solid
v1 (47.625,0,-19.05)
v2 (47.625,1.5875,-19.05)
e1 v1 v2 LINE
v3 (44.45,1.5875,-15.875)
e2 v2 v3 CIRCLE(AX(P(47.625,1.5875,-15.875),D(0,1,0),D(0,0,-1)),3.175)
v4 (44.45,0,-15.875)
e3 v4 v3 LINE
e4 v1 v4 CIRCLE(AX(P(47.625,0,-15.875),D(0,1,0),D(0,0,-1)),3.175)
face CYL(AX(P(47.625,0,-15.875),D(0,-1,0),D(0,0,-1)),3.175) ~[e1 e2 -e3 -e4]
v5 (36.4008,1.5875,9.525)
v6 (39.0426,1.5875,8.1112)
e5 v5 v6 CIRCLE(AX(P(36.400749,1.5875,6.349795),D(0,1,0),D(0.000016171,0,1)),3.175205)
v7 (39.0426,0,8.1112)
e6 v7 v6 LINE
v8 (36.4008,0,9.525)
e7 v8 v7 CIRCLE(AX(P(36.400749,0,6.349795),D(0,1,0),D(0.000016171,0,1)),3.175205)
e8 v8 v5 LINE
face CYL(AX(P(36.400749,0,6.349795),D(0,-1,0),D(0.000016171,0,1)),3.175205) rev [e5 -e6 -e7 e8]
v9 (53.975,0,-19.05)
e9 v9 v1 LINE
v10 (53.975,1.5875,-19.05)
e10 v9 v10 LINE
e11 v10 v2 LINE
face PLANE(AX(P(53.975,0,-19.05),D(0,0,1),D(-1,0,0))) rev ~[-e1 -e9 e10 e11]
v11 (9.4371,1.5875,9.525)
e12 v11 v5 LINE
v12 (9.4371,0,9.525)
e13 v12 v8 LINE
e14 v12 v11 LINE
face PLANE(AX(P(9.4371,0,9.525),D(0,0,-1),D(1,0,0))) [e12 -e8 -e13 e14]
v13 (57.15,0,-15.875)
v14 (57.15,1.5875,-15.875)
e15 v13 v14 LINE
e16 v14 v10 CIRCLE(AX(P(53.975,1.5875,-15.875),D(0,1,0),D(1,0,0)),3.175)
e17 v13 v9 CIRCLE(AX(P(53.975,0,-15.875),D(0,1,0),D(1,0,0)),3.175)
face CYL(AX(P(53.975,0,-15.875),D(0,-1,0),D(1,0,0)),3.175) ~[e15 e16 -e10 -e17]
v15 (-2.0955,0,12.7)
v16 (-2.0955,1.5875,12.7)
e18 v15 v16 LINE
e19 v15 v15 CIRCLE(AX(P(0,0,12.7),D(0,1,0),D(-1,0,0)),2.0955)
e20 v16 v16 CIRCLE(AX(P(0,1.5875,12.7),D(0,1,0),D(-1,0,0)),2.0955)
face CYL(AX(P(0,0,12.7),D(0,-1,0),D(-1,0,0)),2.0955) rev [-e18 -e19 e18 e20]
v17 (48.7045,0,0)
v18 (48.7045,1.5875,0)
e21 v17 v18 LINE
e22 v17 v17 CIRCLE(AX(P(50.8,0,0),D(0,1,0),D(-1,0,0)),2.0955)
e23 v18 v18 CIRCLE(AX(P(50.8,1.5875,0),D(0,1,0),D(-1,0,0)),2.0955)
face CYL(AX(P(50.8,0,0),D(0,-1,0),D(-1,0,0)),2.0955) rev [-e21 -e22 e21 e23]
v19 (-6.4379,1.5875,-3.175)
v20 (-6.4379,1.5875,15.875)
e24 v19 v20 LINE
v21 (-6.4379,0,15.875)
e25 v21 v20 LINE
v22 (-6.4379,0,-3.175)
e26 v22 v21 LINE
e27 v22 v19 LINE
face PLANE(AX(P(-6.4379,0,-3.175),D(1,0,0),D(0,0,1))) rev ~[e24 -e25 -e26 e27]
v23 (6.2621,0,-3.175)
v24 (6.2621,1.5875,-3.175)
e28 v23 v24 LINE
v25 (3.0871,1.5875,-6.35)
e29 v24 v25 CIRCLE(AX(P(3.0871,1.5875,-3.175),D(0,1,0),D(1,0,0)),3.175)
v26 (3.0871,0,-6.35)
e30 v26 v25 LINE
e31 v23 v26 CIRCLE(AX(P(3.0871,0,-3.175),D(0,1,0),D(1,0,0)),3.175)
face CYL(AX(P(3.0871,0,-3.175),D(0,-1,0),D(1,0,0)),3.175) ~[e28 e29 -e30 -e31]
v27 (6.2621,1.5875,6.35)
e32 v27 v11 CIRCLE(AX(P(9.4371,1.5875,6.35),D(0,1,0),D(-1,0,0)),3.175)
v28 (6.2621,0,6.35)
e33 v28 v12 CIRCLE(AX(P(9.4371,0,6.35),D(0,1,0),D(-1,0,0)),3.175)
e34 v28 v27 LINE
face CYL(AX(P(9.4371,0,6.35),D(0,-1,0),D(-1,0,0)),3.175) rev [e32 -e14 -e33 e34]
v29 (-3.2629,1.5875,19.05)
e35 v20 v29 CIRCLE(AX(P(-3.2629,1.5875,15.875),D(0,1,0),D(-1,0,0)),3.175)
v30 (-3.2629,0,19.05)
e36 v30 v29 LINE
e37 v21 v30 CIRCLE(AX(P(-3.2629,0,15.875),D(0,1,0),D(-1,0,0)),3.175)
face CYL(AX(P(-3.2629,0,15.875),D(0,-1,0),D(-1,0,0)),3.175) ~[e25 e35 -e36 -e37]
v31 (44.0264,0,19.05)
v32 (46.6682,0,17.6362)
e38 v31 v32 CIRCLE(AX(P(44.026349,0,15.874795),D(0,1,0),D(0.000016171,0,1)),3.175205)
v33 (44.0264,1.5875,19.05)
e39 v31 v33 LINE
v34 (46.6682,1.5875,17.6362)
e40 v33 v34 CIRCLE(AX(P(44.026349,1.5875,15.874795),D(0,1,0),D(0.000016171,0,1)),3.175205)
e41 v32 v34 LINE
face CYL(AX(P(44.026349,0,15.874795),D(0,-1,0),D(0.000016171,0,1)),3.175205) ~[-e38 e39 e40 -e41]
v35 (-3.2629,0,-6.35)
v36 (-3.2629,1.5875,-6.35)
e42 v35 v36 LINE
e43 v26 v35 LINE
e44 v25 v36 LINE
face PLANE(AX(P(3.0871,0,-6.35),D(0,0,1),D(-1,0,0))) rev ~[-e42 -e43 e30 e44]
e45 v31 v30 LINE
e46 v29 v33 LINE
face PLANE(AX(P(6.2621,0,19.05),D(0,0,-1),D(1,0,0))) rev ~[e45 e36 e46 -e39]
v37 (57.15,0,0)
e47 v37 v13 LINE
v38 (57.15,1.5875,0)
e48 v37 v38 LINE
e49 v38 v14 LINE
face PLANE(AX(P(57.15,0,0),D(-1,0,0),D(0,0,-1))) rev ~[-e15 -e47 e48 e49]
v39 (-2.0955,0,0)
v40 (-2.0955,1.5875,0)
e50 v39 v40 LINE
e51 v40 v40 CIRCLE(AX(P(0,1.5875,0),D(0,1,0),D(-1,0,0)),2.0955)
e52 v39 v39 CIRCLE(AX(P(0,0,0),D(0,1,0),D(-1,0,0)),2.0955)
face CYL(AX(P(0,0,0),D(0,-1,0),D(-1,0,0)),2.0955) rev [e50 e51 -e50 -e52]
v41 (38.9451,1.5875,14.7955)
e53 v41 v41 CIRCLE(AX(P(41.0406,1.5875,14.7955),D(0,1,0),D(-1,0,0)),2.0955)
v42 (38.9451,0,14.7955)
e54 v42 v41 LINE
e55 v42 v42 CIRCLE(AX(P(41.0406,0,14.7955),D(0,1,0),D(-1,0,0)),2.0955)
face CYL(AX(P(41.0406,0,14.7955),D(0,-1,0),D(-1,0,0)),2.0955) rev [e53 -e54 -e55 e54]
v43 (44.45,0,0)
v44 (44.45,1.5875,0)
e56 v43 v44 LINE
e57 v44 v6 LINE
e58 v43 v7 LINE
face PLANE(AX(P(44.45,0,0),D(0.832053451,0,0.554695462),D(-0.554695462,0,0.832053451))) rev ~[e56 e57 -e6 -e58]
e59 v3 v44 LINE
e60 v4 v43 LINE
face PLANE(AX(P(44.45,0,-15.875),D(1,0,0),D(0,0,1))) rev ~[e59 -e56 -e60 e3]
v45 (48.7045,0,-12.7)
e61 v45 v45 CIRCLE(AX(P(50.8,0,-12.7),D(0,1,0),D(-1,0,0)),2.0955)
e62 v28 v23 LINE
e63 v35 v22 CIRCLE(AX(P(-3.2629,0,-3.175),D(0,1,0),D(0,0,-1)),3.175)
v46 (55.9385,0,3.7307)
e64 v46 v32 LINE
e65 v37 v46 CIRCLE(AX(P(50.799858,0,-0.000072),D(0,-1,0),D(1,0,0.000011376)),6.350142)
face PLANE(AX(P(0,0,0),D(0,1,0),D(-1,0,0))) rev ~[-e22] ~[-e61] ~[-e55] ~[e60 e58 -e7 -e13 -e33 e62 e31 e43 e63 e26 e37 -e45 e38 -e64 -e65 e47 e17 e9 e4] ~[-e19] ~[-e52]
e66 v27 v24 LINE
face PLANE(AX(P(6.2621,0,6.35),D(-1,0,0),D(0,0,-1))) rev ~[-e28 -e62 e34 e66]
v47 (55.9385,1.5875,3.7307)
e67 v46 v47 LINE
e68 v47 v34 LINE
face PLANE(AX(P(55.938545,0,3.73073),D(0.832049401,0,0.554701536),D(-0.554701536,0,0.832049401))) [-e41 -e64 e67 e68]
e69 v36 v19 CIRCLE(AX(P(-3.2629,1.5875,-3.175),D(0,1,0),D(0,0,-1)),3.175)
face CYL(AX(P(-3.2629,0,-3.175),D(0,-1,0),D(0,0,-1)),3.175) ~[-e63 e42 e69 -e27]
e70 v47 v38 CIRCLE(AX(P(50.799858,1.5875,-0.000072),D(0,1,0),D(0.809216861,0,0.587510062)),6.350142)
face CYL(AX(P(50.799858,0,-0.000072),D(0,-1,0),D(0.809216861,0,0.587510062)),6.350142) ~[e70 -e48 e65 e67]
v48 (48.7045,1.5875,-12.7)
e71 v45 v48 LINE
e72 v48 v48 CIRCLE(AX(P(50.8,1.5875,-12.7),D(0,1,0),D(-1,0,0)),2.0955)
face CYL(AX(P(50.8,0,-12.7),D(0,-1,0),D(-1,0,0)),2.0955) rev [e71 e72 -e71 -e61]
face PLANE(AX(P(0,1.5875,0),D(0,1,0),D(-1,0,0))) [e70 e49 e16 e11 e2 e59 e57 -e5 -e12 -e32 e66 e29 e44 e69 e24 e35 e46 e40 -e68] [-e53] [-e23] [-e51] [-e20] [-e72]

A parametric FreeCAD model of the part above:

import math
import FreeCAD as App
import Part
import Sketcher
from FreeCAD import Vector
Q = App.Units.Quantity

doc = App.newDocument("Part")
body = doc.addObject("PartDesign::Body", "Body")

# Sketch on XZ plane
sketch1 = body.newObject("Sketcher::SketchObject", "Sketch")
sketch1.AttachmentSupport = (doc.getObject("XZ_Plane"), [""])
sketch1.MapMode = "FlatFace"
sketch1.addGeometry(Part.ArcOfCircle(Part.Circle(Vector(-3.3, -3.2, 0), Vector(0, 0, 1), 3.2), math.radians(180), math.radians(270)), False)
sketch1.addGeometry(Part.LineSegment(Vector(-6.4, -3.2, 0), Vector(-6.4, 15.9, 0)), False)
sketch1.addGeometry(Part.ArcOfCircle(Part.Circle(Vector(-3.3, 15.9, 0), Vector(0, 0, 1), 3.2), math.radians(90), math.radians(180)), False)
sketch1.addGeometry(Part.LineSegment(Vector(-3.3, 19.1, 0), Vector(44, 19.1, 0)), False)
sketch1.addGeometry(Part.ArcOfCircle(Part.Circle(Vector(44, 15.9, 0), Vector(0, 0, 1), 3.2), math.radians(34), math.radians(90)), False)
sketch1.addGeometry(Part.LineSegment(Vector(46.7, 17.6, 0), Vector(55.9, 3.7, 0)), False)
sketch1.addGeometry(Part.ArcOfCircle(Part.Circle(Vector(50.8, 0, 0), Vector(0, 0, 1), 6.3), math.radians(0), math.radians(36)), False)
sketch1.addGeometry(Part.LineSegment(Vector(57.1, 0, 0), Vector(57.1, -15.9, 0)), False)
sketch1.addGeometry(Part.ArcOfCircle(Part.Circle(Vector(54, -15.9, 0), Vector(0, 0, 1), 3.2), math.radians(-90), math.radians(0)), False)
sketch1.addGeometry(Part.LineSegment(Vector(54, -19.1, 0), Vector(47.6, -19.1, 0)), False)
sketch1.addGeometry(Part.ArcOfCircle(Part.Circle(Vector(47.6, -15.9, 0), Vector(0, 0, 1), 3.2), math.radians(180), math.radians(270)), False)
sketch1.addGeometry(Part.LineSegment(Vector(44.5, -15.9, 0), Vector(44.5, 0, 0)), False)
sketch1.addGeometry(Part.LineSegment(Vector(44.5, 0, 0), Vector(39, 8.1, 0)), False)
sketch1.addGeometry(Part.ArcOfCircle(Part.Circle(Vector(36.4, 6.3, 0), Vector(0, 0, 1), 3.2), math.radians(34), math.radians(90)), False)
sketch1.addGeometry(Part.LineSegment(Vector(36.4, 9.5, 0), Vector(9.4, 9.5, 0)), False)
sketch1.addGeometry(Part.ArcOfCircle(Part.Circle(Vector(9.4, 6.3, 0), Vector(0, 0, 1), 3.2), math.radians(90), math.radians(180)), False)
sketch1.addGeometry(Part.LineSegment(Vector(6.3, 6.3, 0), Vector(6.3, -3.2, 0)), False)
sketch1.addGeometry(Part.ArcOfCircle(Part.Circle(Vector(3.1, -3.2, 0), Vector(0, 0, 1), 3.2), math.radians(-90), math.radians(0)), False)
sketch1.addGeometry(Part.LineSegment(Vector(3.1, -6.3, 0), Vector(-3.3, -6.3, 0)), False)
sketch1.addGeometry(Part.Circle(Vector(50.8, -12.7, 0), Vector(0, 0, 1), 2.1), False)
sketch1.addGeometry(Part.Circle(Vector(50.8, 0, 0), Vector(0, 0, 1), 2.1), False)
sketch1.addGeometry(Part.Circle(Vector(41, 14.8, 0), Vector(0, 0, 1), 2.1), False)
sketch1.addGeometry(Part.Circle(Vector(0, 0, 0), Vector(0, 0, 1), 2.1), False)
sketch1.addGeometry(Part.Circle(Vector(0, 12.7, 0), Vector(0, 0, 1), 2.1), False)
sketch1.addConstraint(Sketcher.Constraint("Tangent", 0, 1, 1, 1))
sketch1.addConstraint(Sketcher.Constraint("Tangent", 1, 2, 2, 2))
sketch1.addConstraint(Sketcher.Constraint("Tangent", 2, 1, 3, 1))
sketch1.addConstraint(Sketcher.Constraint("Tangent", 3, 2, 4, 2))
sketch1.addConstraint(Sketcher.Constraint("Tangent", 4, 1, 5, 1))
sketch1.addConstraint(Sketcher.Constraint("Coincident", 5, 2, 6, 2))
sketch1.addConstraint(Sketcher.Constraint("Tangent", 6, 1, 7, 1))
sketch1.addConstraint(Sketcher.Constraint("Tangent", 7, 2, 8, 2))
sketch1.addConstraint(Sketcher.Constraint("Tangent", 8, 1, 9, 1))
sketch1.addConstraint(Sketcher.Constraint("Tangent", 9, 2, 10, 2))
sketch1.addConstraint(Sketcher.Constraint("Tangent", 10, 1, 11, 1))
sketch1.addConstraint(Sketcher.Constraint("Coincident", 11, 2, 12, 1))
sketch1.addConstraint(Sketcher.Constraint("Tangent", 12, 2, 13, 1))
sketch1.addConstraint(Sketcher.Constraint("Tangent", 13, 2, 14, 1))
sketch1.addConstraint(Sketcher.Constraint("Tangent", 14, 2, 15, 1))
sketch1.addConstraint(Sketcher.Constraint("Tangent", 15, 2, 16, 1))
sketch1.addConstraint(Sketcher.Constraint("Tangent", 16, 2, 17, 2))
sketch1.addConstraint(Sketcher.Constraint("Tangent", 17, 1, 18, 1))
sketch1.addConstraint(Sketcher.Constraint("Tangent", 18, 2, 0, 2))
sketch1.addConstraint(Sketcher.Constraint("Vertical", 1))
sketch1.addConstraint(Sketcher.Constraint("Horizontal", 3))
sketch1.addConstraint(Sketcher.Constraint("Vertical", 7))
sketch1.addConstraint(Sketcher.Constraint("Horizontal", 9))
sketch1.addConstraint(Sketcher.Constraint("Vertical", 11))
sketch1.addConstraint(Sketcher.Constraint("Horizontal", 14))
sketch1.addConstraint(Sketcher.Constraint("Vertical", 16))
sketch1.addConstraint(Sketcher.Constraint("Horizontal", 18))
sketch1.addConstraint(Sketcher.Constraint("Coincident", 22, 3, -1, 1))
sketch1.addConstraint(Sketcher.Constraint("Coincident", 20, 3, 6, 3))
sketch1.addConstraint(Sketcher.Constraint("Equal", 0, 2))
sketch1.addConstraint(Sketcher.Constraint("Equal", 2, 4))
sketch1.addConstraint(Sketcher.Constraint("Equal", 4, 8))
sketch1.addConstraint(Sketcher.Constraint("Equal", 8, 10))
sketch1.addConstraint(Sketcher.Constraint("Equal", 10, 13))
sketch1.addConstraint(Sketcher.Constraint("Equal", 13, 15))
sketch1.addConstraint(Sketcher.Constraint("Equal", 15, 17))
sketch1.addConstraint(Sketcher.Constraint("Equal", 19, 20))
sketch1.addConstraint(Sketcher.Constraint("Equal", 20, 21))
sketch1.addConstraint(Sketcher.Constraint("Equal", 21, 22))
sketch1.addConstraint(Sketcher.Constraint("Equal", 22, 23))
sketch1.addConstraint(Sketcher.Constraint("PointOnObject", 6, 3, -1))
sketch1.addConstraint(Sketcher.Constraint("PointOnObject", 23, 3, -2))
sketch1.addConstraint(Sketcher.Constraint("PointOnObject", 11, 2, -1))
sketch1.addConstraint(Sketcher.Constraint("Parallel", 5, 12))
sketch1.addConstraint(Sketcher.Constraint("Vertical", 6, 3, 19, 3))
sketch1.addConstraint(Sketcher.Constraint("Equal", 9, 18))
sketch1.addConstraint(Sketcher.Constraint("Radius", 6, Q("0.25 in")))
sketch1.addConstraint(Sketcher.Constraint("Diameter", 19, Q("0.165 in")))
sketch1.addConstraint(Sketcher.Constraint("Radius", 0, Q("0.125 in")))
sketch1.addConstraint(Sketcher.Constraint("DistanceX", 9, 2, 9, 1, Q("0.25 in")))
sketch1.addConstraint(Sketcher.Constraint("DistanceY", 19, 3, -1, 1, Q("0.5 in")))
sketch1.addConstraint(Sketcher.Constraint("DistanceY", -1, 1, 23, 3, Q("0.5 in")))
sketch1.addConstraint(Sketcher.Constraint("DistanceY", 8, 3, 0, 3, Q("0.5 in")))
sketch1.addConstraint(Sketcher.Constraint("DistanceY", 15, 3, 2, 1, Q("0.5 in")))
sketch1.addConstraint(Sketcher.Constraint("DistanceY", 17, 3, 14, 2, Q("0.5 in")))
sketch1.addConstraint(Sketcher.Constraint("DistanceY", -1, 1, 13, 3, Q("0.25 in")))
sketch1.addConstraint(Sketcher.Constraint("DistanceX", -1, 1, 6, 3, Q("2 in")))
sketch1.addConstraint(Sketcher.Constraint("Angle", 5, Q("-56.3098 deg")))
sketch1.addConstraint(Sketcher.Constraint("DistanceX", 3, 1, 3, 2, 47.2893))
sketch1.addConstraint(Sketcher.Constraint("DistanceX", 14, 2, 14, 1, 26.9637))
sketch1.addConstraint(Sketcher.Constraint("DistanceY", -1, 1, 21, 3, Q("0.5825 in")))
sketch1.addConstraint(Sketcher.Constraint("DistanceX", -1, 1, 21, 3, 41.0406))
pad1 = body.newObject("PartDesign::Pad", "Pad")
pad1.Profile = sketch1
pad1.Length = Q("0.0625 in")
pad1.Reversed = True

doc.recompute()
